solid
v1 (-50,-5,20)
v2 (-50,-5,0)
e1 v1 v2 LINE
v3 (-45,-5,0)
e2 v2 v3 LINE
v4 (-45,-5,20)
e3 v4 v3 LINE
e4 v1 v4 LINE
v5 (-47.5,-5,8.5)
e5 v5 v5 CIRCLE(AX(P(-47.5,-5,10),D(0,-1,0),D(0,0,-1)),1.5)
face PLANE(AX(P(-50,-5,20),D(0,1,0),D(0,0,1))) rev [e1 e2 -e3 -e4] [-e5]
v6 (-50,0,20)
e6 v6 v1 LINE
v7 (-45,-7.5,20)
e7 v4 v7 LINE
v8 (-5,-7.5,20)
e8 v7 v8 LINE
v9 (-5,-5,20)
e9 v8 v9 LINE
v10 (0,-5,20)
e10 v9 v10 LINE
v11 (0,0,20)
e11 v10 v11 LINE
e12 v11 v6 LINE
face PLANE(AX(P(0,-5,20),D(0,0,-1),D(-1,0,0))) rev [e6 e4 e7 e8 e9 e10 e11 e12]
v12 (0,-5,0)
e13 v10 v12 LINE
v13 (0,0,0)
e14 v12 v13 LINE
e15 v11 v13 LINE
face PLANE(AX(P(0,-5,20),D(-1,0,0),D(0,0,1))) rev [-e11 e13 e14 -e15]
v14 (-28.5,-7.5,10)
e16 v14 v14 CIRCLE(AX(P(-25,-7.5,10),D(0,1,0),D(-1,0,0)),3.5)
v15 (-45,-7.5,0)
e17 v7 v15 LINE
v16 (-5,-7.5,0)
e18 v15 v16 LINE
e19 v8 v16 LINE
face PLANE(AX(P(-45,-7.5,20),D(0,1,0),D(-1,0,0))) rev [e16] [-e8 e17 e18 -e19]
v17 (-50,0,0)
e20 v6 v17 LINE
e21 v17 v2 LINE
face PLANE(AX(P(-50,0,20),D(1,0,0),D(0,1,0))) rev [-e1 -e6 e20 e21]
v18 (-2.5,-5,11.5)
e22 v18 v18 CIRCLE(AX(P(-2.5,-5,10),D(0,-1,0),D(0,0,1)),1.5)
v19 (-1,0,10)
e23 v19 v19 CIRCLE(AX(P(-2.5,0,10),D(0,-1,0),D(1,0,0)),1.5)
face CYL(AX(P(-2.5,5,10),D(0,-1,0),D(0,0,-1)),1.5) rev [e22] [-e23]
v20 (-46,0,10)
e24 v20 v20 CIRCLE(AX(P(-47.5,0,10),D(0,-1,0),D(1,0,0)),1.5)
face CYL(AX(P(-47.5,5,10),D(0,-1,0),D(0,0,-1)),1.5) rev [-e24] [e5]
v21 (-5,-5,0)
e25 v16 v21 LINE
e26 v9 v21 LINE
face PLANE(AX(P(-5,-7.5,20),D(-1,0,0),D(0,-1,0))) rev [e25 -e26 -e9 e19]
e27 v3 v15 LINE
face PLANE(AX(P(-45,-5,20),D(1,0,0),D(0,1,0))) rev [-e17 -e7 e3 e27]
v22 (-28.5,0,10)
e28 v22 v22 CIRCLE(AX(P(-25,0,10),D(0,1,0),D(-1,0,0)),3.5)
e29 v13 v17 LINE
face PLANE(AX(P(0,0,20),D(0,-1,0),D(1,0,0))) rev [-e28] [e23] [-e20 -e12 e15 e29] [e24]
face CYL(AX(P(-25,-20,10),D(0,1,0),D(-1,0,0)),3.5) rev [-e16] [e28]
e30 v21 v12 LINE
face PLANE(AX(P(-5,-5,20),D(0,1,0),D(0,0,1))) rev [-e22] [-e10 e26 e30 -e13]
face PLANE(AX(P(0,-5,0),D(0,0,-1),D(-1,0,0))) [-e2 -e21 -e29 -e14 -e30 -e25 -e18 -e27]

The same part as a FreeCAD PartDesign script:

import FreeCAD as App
import Part
import Sketcher

V = App.Vector


def add_polygon(sketch, points):
    """Adds a closed chain of lines whose ends are joined by coincident constraints."""
    first, n = sketch.GeometryCount, len(points)
    for a, b in zip(points, points[1:] + points[:1]):
        sketch.addGeometry(Part.LineSegment(App.Vector(*a, 0), App.Vector(*b, 0)), False)
    for i in range(n):
        sketch.addConstraint(Sketcher.Constraint("Coincident", first + i, 2, first + (i + 1) % n, 1))

doc = App.newDocument("Part")
body = doc.addObject("PartDesign::Body", "Body")

sketch1 = body.newObject("Sketcher::SketchObject", "Sketch")
sketch1.AttachmentSupport = (doc.getObject("XY_Plane"), [""])
sketch1.MapMode = "FlatFace"
add_polygon(sketch1, [(0, 0), (-50, 0), (-50, -5), (-45, -5), (-45, -7.5), (-5, -7.5), (-5, -5), (0, -5)])
sketch1.addConstraint([
    Sketcher.Constraint("Horizontal", 0),
    Sketcher.Constraint("Vertical", 1),
    Sketcher.Constraint("Horizontal", 2),
    Sketcher.Constraint("Vertical", 3),
    Sketcher.Constraint("Horizontal", 4),
    Sketcher.Constraint("Vertical", 5),
    Sketcher.Constraint("Horizontal", 6),
    Sketcher.Constraint("Vertical", 7),
    Sketcher.Constraint("Coincident", 7, 2, -1, 1),
    Sketcher.Constraint("Horizontal", 2, 2, 5, 2),
    Sketcher.Constraint("Equal", 2, 6),
    Sketcher.Constraint("Equal", 6, 1),
    Sketcher.Constraint("DistanceX", 0, 2, 0, 1, 50.0),
    Sketcher.Constraint("DistanceX", 2, 1, 2, 2, 5.0),
    Sketcher.Constraint("DistanceY", 3, 2, 3, 1, 2.5),
])
pad1 = body.newObject("PartDesign::Pad", "Pad")
pad1.Profile = sketch1
pad1.Length = 20

sketch2 = body.newObject("Sketcher::SketchObject", "Sketch001")
sketch2.AttachmentSupport = (doc.getObject("XZ_Plane"), [""])
sketch2.MapMode = "FlatFace"
sketch2.addGeometry(Part.Circle(V(-25, 10, 0), V(0, 0, 1), 3.5), False)
sketch2.addConstraint([
    Sketcher.Constraint("Diameter", 0, 7.0),
    Sketcher.Constraint("DistanceX", 0, 3, -1, 1, 25.0),
    Sketcher.Constraint("DistanceY", -1, 1, 0, 3, 10.0),
])
pocket1 = body.newObject("PartDesign::Pocket", "Pocket")
pocket1.Profile = sketch2
pocket1.Length = 20
pocket1.Reversed = True

sketch3 = body.newObject("Sketcher::SketchObject", "Sketch002")
sketch3.AttachmentSupport = (doc.getObject("XZ_Plane"), [""])
sketch3.MapMode = "FlatFace"
sketch3.AttachmentOffset = App.Placement(V(0, 0, 5), App.Rotation())
sketch3.addGeometry([
    Part.Circle(V(-47.5, 10, 0), V(0, 0, 1), 1.5),
    Part.Circle(V(-2.5, 10, 0), V(0, 0, 1), 1.5),
], False)
sketch3.addConstraint([
    Sketcher.Constraint("Equal", 0, 1),
    Sketcher.Constraint("Horizontal", 0, 3, 1, 3),
    Sketcher.Constraint("Diameter", 0, 3.0),
    Sketcher.Constraint("DistanceY", -1, 1, 0, 3, 10.0),
    Sketcher.Constraint("DistanceX", 0, 3, 1, 3, 45.0),
    Sketcher.Constraint("DistanceX", 0, 3, -1, 1, 47.5),
])
pocket2 = body.newObject("PartDesign::Pocket", "Pocket001")
pocket2.Profile = sketch3
pocket2.Length = 10

doc.recompute()
